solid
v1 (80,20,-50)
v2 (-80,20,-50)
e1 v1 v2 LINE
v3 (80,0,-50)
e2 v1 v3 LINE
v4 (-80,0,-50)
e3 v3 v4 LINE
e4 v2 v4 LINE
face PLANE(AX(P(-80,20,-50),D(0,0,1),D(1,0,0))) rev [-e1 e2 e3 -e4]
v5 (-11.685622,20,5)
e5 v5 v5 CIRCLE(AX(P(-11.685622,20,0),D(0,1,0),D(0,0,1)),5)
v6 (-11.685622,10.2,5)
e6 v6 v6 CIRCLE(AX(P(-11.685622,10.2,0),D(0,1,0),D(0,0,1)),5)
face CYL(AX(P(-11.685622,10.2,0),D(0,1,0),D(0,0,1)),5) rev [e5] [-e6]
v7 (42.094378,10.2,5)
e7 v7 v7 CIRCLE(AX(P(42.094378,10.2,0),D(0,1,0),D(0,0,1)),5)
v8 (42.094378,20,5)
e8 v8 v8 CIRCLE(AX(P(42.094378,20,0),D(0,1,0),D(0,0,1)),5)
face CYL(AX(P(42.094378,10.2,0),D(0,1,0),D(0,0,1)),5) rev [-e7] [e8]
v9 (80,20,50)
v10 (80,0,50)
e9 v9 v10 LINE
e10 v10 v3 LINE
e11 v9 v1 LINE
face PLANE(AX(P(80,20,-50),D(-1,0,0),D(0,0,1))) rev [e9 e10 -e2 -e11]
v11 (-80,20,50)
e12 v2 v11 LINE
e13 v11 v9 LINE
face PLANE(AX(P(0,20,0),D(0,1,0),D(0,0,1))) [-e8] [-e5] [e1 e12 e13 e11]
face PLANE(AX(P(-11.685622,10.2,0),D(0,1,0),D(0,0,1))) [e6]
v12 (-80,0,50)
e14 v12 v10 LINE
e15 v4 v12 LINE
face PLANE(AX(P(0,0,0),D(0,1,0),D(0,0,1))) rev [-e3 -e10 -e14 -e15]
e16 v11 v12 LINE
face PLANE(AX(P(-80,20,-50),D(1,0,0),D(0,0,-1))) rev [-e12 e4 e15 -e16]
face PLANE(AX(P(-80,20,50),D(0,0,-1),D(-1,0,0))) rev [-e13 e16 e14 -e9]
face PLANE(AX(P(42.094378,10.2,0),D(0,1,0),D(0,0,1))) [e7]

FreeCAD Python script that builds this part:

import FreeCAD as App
import Part
import Sketcher

V = App.Vector
Q = App.Units.Quantity


def add_polygon(sketch, points):
    """Adds a closed chain of lines whose ends are joined by coincident constraints."""
    first, n = sketch.GeometryCount, len(points)
    for a, b in zip(points, points[1:] + points[:1]):
        sketch.addGeometry(Part.LineSegment(App.Vector(*a, 0), App.Vector(*b, 0)), False)
    for i in range(n):
        sketch.addConstraint(Sketcher.Constraint("Coincident", first + i, 2, first + (i + 1) % n, 1))

doc = App.newDocument("Part")
body = doc.addObject("PartDesign::Body", "Body")

sketch1 = body.newObject("Sketcher::SketchObject", "Sketch")
sketch1.AttachmentSupport = (doc.getObject("XZ_Plane"), [""])
sketch1.MapMode = "FlatFace"
add_polygon(sketch1, [(-80, -50), (-80, 50), (80, 50), (80, -50)])
sketch1.addConstraint(Sketcher.Constraint("Vertical", 0))
sketch1.addConstraint(Sketcher.Constraint("Horizontal", 1))
sketch1.addConstraint(Sketcher.Constraint("Vertical", 2))
sketch1.addConstraint(Sketcher.Constraint("Horizontal", 3))
sketch1.addConstraint(Sketcher.Constraint("Symmetric", 0, 2, 2, 2, -1, 1))
sketch1.addConstraint(Sketcher.Constraint("DistanceX", 1, 1, 1, 2, Q("160 mm")))
sketch1.addConstraint(Sketcher.Constraint("DistanceY", 0, 1, 0, 2, Q("100 mm")))
pad1 = body.newObject("PartDesign::Pad", "Pad")
pad1.Profile = sketch1
pad1.Length = 20
pad1.Reversed = True

sketch2 = body.newObject("Sketcher::SketchObject", "Sketch001")
sketch2.AttachmentSupport = (doc.getObject("XZ_Plane"), [""])
sketch2.MapMode = "FlatFace"
sketch2.AttachmentOffset = App.Placement(V(0, 0, -20), App.Rotation())
sketch2.addGeometry(Part.Circle(V(-11.685622, 0, 0), V(0, 0, 1), 5), False)
sketch2.addGeometry(Part.Circle(V(42.094378, 0, 0), V(0, 0, 1), 5), False)
sketch2.addConstraint(Sketcher.Constraint("Equal", 0, 1))
sketch2.addConstraint(Sketcher.Constraint("PointOnObject", 0, 3, -1))
sketch2.addConstraint(Sketcher.Constraint("PointOnObject", 1, 3, -1))
sketch2.addConstraint(Sketcher.Constraint("Diameter", 0, Q("10 mm")))
sketch2.addConstraint(Sketcher.Constraint("DistanceX", 0, 3, 1, 3, Q("53.78 mm")))
sketch2.addConstraint(Sketcher.Constraint("DistanceX", 0, 3, -1, 1, Q("11.685622 mm")))
pocket1 = body.newObject("PartDesign::Pocket", "Pocket")
pocket1.Profile = sketch2
pocket1.Length = 9.8
pocket1.Reversed = True

doc.recompute()
